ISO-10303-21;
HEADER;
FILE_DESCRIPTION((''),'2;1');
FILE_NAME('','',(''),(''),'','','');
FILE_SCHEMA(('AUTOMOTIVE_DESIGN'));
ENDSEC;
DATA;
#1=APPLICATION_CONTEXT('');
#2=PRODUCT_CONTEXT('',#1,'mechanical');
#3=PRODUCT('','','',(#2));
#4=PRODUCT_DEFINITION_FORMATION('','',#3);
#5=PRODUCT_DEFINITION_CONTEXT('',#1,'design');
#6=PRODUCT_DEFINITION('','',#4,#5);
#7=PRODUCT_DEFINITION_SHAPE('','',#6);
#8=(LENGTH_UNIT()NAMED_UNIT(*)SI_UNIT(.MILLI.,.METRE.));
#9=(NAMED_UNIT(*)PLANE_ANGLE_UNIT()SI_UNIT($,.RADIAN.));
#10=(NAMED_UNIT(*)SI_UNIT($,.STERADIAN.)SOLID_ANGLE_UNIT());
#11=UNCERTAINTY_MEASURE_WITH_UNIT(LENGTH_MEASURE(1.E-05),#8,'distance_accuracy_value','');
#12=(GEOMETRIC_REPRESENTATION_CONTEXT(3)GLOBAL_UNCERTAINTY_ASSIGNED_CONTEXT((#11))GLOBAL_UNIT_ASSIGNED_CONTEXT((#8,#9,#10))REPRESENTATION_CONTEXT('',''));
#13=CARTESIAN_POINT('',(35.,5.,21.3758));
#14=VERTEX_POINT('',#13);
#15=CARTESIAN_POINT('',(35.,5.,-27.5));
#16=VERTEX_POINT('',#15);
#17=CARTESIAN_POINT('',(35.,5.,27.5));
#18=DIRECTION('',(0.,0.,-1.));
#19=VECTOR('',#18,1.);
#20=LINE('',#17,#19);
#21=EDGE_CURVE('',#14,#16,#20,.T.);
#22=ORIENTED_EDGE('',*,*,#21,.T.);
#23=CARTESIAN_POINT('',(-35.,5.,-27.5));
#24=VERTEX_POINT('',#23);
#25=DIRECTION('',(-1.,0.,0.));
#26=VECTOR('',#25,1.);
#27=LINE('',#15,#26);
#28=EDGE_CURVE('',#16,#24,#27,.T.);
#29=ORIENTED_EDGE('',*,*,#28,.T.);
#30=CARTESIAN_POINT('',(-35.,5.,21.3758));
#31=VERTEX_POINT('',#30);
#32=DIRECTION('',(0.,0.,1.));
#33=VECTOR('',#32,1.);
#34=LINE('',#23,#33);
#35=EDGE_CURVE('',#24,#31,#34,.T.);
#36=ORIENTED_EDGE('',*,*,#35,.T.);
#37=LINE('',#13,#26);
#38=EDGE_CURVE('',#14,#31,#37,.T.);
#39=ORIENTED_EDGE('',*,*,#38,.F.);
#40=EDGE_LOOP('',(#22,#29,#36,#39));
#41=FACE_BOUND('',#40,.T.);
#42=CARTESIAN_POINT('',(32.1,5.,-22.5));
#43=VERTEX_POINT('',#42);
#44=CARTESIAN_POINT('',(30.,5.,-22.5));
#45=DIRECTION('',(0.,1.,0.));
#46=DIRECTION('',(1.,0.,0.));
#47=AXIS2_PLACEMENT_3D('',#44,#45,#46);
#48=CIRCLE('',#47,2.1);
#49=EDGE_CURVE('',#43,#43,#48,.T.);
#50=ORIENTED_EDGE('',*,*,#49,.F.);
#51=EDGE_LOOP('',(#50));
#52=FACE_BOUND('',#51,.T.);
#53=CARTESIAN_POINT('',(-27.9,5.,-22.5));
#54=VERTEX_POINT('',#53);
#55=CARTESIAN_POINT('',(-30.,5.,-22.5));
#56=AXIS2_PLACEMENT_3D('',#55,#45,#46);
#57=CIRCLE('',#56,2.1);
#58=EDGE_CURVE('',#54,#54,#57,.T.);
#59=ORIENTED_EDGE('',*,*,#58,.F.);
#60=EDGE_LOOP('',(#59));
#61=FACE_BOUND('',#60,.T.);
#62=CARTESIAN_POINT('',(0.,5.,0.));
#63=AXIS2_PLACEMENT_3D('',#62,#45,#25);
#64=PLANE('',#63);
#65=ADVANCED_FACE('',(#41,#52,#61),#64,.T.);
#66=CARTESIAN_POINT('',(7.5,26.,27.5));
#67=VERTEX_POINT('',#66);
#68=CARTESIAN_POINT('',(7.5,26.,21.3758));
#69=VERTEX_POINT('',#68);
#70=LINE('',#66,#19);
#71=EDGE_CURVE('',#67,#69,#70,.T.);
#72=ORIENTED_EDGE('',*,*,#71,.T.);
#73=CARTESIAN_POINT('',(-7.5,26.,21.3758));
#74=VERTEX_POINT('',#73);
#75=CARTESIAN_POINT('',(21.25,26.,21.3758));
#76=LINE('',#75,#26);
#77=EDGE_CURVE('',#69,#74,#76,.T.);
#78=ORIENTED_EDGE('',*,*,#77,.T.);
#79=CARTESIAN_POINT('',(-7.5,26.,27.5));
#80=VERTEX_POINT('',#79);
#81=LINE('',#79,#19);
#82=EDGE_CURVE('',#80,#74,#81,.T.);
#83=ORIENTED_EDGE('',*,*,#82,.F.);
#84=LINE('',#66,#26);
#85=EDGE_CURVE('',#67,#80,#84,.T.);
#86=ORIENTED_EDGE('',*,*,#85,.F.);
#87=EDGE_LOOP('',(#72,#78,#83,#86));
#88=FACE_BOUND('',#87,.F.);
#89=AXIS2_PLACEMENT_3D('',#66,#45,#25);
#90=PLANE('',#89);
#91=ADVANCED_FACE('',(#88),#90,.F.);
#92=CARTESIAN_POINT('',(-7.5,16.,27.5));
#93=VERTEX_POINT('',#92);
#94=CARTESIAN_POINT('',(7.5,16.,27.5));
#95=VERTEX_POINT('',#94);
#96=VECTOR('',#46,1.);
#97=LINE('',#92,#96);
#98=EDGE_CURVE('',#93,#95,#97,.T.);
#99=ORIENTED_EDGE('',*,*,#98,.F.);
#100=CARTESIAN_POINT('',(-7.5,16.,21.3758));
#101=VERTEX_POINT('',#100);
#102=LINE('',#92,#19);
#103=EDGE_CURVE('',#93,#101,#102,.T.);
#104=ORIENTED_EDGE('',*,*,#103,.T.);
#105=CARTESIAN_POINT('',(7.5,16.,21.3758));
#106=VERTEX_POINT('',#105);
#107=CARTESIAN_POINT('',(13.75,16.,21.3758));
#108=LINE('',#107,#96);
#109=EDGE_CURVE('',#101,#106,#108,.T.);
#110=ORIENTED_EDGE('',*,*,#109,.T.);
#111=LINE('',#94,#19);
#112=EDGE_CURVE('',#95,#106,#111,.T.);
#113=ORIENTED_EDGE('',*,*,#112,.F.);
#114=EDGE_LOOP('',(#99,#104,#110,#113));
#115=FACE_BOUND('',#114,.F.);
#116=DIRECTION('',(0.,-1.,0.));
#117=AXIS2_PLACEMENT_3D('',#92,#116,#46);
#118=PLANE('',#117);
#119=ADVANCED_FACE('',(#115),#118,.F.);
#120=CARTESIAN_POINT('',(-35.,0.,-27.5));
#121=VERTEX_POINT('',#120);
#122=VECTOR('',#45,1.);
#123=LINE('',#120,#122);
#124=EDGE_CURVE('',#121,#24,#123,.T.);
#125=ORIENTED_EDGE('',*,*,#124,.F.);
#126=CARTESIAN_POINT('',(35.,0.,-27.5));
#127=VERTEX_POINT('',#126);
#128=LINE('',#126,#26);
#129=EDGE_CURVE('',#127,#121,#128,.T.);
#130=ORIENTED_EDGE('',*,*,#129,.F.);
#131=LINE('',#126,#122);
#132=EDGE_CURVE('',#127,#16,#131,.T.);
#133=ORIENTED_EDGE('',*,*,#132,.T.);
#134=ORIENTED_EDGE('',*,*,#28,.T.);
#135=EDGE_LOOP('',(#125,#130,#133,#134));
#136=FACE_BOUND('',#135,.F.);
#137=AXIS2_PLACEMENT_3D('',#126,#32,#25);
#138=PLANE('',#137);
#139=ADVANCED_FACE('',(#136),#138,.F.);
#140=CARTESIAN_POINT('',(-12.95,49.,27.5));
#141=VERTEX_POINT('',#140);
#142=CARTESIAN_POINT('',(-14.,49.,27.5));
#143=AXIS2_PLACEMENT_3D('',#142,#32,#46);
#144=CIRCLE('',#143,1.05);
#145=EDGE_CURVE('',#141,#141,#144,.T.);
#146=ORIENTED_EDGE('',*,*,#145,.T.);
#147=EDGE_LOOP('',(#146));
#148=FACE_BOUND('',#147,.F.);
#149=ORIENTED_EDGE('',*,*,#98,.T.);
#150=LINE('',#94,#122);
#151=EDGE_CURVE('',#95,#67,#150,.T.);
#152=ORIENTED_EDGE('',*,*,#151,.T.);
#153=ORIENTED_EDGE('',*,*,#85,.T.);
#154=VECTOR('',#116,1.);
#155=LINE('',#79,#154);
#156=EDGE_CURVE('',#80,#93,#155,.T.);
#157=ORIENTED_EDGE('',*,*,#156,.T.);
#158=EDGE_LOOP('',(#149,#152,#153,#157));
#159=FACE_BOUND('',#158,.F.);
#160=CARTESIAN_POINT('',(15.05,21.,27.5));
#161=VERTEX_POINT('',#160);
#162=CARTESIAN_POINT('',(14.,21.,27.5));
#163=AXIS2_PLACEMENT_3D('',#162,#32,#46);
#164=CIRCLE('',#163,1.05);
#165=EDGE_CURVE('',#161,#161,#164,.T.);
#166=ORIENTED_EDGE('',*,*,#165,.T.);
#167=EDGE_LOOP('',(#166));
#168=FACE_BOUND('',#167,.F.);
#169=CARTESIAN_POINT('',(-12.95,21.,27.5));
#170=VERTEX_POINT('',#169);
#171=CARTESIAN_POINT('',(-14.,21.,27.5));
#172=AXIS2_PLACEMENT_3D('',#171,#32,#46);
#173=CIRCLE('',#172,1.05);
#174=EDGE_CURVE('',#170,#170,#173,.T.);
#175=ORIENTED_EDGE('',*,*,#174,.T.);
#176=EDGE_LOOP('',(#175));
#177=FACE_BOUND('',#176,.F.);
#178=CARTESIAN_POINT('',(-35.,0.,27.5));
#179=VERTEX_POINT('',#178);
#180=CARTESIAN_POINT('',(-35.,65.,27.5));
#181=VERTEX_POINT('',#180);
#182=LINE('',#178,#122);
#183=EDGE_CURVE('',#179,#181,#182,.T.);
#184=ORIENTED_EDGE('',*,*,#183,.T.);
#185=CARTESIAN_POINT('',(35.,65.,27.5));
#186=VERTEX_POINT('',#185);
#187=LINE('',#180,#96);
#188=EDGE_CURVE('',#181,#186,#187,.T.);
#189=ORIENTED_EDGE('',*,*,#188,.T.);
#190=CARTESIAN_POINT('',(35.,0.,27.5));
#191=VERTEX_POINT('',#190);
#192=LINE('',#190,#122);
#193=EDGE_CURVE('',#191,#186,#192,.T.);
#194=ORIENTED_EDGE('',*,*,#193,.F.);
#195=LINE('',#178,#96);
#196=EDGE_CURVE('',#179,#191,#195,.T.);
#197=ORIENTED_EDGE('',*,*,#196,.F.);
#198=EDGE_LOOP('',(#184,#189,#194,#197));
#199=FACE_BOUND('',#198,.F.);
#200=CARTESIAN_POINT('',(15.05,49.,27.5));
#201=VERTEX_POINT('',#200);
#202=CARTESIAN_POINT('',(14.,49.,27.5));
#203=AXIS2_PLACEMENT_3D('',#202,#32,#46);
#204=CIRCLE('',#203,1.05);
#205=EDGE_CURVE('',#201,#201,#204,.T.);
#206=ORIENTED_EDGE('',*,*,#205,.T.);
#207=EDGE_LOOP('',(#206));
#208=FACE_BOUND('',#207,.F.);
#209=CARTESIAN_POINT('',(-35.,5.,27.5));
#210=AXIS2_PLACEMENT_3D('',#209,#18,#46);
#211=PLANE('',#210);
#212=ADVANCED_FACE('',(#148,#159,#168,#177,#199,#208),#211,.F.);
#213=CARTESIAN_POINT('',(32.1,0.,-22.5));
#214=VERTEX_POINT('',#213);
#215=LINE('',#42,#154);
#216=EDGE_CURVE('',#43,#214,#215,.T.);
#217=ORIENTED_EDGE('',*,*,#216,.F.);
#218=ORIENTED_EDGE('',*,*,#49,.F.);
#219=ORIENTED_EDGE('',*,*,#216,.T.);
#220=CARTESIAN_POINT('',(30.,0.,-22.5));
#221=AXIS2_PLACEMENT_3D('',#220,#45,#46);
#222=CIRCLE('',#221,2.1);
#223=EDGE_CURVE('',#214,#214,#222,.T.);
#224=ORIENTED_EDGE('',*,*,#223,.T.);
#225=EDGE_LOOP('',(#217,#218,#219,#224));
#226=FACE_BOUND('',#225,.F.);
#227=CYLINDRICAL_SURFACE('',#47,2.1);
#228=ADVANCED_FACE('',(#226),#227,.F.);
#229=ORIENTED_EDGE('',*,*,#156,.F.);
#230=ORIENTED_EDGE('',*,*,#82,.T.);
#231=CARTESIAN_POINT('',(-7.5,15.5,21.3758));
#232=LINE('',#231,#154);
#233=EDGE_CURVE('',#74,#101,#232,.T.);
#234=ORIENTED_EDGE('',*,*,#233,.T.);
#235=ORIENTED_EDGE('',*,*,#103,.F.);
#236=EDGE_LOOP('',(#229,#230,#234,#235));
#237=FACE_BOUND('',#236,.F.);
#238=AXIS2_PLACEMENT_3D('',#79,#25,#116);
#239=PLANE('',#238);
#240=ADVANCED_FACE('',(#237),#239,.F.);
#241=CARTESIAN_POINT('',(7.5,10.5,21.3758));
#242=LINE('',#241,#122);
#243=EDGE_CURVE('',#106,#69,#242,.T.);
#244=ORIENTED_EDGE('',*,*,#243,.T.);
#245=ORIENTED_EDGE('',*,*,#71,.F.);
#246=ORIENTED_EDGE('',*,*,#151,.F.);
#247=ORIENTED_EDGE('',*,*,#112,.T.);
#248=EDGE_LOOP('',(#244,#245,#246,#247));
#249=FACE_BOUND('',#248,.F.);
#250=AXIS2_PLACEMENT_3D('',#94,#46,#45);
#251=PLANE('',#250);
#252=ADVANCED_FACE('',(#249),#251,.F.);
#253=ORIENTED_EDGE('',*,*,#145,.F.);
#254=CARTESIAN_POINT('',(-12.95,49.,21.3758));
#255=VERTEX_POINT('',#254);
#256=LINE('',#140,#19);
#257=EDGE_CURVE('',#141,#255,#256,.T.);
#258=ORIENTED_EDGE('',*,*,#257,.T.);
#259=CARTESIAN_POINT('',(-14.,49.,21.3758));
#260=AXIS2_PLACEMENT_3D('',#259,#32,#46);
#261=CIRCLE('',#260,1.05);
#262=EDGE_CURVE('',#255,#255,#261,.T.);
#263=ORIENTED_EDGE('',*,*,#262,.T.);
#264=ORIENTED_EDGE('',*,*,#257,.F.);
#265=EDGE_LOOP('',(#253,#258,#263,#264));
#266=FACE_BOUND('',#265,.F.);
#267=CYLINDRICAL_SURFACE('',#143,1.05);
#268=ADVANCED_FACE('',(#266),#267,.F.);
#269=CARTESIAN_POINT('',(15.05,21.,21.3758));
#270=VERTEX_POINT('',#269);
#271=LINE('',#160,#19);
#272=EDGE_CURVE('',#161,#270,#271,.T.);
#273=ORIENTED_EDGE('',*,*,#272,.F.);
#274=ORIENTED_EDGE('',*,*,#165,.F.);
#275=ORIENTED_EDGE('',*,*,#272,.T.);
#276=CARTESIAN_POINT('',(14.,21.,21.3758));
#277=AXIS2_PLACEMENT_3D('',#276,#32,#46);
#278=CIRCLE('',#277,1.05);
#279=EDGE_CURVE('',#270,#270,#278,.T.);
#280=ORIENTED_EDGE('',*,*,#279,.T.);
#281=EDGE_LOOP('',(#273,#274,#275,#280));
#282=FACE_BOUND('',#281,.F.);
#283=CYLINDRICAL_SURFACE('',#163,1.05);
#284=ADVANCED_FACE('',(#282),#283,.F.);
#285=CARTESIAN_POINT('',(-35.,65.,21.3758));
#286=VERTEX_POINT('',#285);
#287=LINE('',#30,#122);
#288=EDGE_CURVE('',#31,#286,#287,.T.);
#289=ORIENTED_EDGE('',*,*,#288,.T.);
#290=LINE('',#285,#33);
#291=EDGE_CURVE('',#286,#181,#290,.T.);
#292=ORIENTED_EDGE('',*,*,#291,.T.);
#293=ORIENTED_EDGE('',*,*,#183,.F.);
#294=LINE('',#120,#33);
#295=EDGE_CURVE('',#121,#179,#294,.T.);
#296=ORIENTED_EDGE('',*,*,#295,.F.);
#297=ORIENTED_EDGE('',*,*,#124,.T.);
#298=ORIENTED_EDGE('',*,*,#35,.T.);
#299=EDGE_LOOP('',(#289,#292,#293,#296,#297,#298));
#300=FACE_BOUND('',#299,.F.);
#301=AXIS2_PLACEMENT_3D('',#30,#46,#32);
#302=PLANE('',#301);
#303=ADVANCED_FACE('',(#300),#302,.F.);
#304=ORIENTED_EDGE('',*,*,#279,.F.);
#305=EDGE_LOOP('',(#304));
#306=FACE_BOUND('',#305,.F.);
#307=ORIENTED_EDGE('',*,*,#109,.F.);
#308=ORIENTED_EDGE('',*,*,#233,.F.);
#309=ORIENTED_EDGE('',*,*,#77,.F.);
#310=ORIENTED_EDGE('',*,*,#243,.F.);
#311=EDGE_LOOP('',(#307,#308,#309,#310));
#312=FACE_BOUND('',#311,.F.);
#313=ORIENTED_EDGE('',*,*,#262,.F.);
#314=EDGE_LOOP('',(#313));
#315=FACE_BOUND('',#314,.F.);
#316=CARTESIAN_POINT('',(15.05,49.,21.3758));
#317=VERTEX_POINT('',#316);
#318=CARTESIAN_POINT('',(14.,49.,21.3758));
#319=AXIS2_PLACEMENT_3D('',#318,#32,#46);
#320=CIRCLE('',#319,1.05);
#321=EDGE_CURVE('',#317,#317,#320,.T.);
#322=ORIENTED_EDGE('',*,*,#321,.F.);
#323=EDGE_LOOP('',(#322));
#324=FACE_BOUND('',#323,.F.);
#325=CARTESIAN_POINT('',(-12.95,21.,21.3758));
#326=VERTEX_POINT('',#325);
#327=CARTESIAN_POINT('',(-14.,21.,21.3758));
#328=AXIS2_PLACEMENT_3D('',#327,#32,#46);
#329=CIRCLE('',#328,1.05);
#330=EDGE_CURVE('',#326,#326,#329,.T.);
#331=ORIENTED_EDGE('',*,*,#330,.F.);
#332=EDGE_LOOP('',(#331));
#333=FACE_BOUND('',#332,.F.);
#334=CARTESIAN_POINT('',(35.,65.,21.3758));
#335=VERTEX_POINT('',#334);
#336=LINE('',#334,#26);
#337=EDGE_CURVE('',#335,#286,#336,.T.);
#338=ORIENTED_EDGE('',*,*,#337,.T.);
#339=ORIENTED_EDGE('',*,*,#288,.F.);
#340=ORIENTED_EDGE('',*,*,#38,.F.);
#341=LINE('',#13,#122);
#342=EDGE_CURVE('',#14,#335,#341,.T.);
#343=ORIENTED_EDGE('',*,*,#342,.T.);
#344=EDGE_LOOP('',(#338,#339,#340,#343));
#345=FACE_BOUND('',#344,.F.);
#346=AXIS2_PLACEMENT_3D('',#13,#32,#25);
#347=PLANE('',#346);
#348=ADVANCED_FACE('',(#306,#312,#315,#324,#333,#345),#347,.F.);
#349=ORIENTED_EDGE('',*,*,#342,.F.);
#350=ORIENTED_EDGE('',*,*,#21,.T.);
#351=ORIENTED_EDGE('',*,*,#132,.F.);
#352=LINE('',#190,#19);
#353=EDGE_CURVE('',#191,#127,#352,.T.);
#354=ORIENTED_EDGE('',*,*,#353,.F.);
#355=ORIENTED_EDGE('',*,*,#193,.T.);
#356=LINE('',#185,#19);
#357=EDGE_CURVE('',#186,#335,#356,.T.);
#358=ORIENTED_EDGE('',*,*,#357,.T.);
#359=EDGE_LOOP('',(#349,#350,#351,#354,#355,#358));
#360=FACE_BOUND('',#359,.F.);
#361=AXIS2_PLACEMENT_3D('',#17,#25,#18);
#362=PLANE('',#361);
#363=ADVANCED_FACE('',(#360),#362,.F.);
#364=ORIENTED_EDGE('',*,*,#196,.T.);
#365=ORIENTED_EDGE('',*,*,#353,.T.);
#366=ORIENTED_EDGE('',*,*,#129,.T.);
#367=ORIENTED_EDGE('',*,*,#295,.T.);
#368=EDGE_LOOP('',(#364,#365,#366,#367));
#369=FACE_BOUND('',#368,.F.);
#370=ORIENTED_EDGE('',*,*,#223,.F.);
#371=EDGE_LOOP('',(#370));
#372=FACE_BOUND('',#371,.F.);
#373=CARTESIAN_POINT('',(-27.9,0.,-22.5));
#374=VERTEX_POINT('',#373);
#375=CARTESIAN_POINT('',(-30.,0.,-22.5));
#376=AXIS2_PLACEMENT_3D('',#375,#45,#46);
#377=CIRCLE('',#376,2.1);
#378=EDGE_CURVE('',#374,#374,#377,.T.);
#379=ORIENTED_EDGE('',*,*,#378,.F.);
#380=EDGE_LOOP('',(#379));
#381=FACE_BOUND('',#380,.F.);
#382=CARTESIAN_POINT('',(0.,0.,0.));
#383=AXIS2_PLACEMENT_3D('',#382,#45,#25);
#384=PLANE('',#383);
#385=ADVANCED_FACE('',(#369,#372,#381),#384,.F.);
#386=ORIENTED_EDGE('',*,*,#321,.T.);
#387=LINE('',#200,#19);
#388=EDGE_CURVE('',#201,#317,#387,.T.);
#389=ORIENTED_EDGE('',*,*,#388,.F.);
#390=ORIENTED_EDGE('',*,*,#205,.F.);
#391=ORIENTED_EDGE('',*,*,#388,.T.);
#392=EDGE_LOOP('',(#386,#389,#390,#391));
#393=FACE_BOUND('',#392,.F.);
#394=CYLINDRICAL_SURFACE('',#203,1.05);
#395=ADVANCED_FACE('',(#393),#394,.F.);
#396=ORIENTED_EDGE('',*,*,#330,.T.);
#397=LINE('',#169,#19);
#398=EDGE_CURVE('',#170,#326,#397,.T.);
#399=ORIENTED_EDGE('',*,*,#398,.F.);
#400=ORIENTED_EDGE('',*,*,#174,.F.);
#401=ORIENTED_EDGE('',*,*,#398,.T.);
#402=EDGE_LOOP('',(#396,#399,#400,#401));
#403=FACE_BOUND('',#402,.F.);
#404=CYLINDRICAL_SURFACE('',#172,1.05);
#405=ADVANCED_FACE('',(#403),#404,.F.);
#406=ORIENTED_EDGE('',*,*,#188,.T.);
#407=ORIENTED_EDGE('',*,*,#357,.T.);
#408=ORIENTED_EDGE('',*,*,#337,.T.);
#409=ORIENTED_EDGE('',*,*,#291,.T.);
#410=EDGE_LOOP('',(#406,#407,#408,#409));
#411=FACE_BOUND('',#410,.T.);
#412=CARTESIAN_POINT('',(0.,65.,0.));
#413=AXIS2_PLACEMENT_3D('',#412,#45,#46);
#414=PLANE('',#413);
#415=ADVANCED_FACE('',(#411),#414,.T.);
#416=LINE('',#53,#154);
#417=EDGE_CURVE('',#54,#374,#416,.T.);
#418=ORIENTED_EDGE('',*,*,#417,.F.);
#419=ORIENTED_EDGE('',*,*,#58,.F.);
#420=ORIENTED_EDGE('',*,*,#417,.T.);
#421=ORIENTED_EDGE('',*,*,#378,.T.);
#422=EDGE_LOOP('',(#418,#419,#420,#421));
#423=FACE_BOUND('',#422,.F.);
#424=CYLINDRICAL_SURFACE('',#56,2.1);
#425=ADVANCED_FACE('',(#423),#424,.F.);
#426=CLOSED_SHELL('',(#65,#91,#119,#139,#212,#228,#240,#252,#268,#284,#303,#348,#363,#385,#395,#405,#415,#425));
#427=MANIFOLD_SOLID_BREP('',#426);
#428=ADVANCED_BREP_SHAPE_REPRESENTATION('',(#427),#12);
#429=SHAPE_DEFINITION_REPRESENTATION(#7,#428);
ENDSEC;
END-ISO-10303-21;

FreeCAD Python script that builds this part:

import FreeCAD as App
import Part
import Sketcher
from FreeCAD import Vector
Q = App.Units.Quantity


def add_polygon(sketch, points):
    """Adds a closed chain of lines whose ends are joined by coincident constraints."""
    first, n = sketch.GeometryCount, len(points)
    for a, b in zip(points, points[1:] + points[:1]):
        sketch.addGeometry(Part.LineSegment(App.Vector(*a, 0), App.Vector(*b, 0)), False)
    for i in range(n):
        sketch.addConstraint(Sketcher.Constraint("Coincident", first + i, 2, first + (i + 1) % n, 1))

doc = App.newDocument("Part")
body = doc.addObject("PartDesign::Body", "Body")

sketch1 = body.newObject("Sketcher::SketchObject", "Sketch")
sketch1.AttachmentSupport = (doc.getObject("XZ_Plane"), [""])
sketch1.MapMode = "FlatFace"
add_polygon(sketch1, [(-35, -28), (-35, 28), (35, 28), (35, -28)])
sketch1.addConstraint([
    Sketcher.Constraint("Vertical", 0),
    Sketcher.Constraint("Horizontal", 1),
    Sketcher.Constraint("Vertical", 2),
    Sketcher.Constraint("Horizontal", 3),
    Sketcher.Constraint("Symmetric", 0, 2, 2, 2, -1, 1),
    Sketcher.Constraint("DistanceX", 1, 1, 1, 2, Q("70 mm")),
    Sketcher.Constraint("DistanceY", 0, 1, 0, 2, Q("55 mm")),
])
pad1 = body.newObject("PartDesign::Pad", "Pad")
pad1.Profile = sketch1
pad1.Length = 5
pad1.Reversed = True

sketch2 = body.newObject("Sketcher::SketchObject", "Sketch001")
sketch2.AttachmentSupport = (doc.getObject("XZ_Plane"), [""])
sketch2.MapMode = "FlatFace"
sketch2.AttachmentOffset = App.Placement(Vector(0, 0, -5), App.Rotation())
sketch2.addGeometry([
    Part.Circle(Vector(-30, -22.5, 0), Vector(0, 0, 1), 2.1),
    Part.Circle(Vector(30, -22.5, 0), Vector(0, 0, 1), 2.1),
], False)
sketch2.addConstraint([
    Sketcher.Constraint("Equal", 0, 1),
    Sketcher.Constraint("Symmetric", 0, 3, 1, 3, -2),
    Sketcher.Constraint("Diameter", 0, Q("4.2 mm")),
    Sketcher.Constraint("DistanceX", 0, 3, -1, 1, Q("30 mm")),
    Sketcher.Constraint("DistanceY", 0, 3, -1, 1, Q("22.5 mm")),
])
pocket1 = body.newObject("PartDesign::Pocket", "Pocket")
pocket1.Profile = sketch2
pocket1.Length = 5
pocket1.Reversed = True

sketch3 = body.newObject("Sketcher::SketchObject", "Sketch002")
sketch3.AttachmentSupport = (doc.getObject("XZ_Plane"), [""])
sketch3.MapMode = "FlatFace"
sketch3.AttachmentOffset = App.Placement(Vector(0, 0, -5), App.Rotation())
add_polygon(sketch3, [(-35, 21), (-35, 28), (35, 28), (35, 21)])
sketch3.addConstraint([
    Sketcher.Constraint("Vertical", 0),
    Sketcher.Constraint("Horizontal", 1),
    Sketcher.Constraint("Vertical", 2),
    Sketcher.Constraint("Horizontal", 3),
    Sketcher.Constraint("DistanceX", 1, 1, 1, 2, Q("70 mm")),
    Sketcher.Constraint("DistanceX", 0, 2, -1, 1, Q("35 mm")),
    Sketcher.Constraint("DistanceY", -1, 1, 0, 2, Q("27.5 mm")),
    Sketcher.Constraint("DistanceY", 0, 1, 0, 2, Q("6.1242 mm")),
])
pad2 = body.newObject("PartDesign::Pad", "Pad001")
pad2.Profile = sketch3
pad2.Length = 60
pad2.Reversed = True

sketch4 = body.newObject("Sketcher::SketchObject", "Sketch003")
sketch4.AttachmentSupport = (doc.getObject("XY_Plane"), [""])
sketch4.MapMode = "FlatFace"
sketch4.AttachmentOffset = App.Placement(Vector(0, 0, 27.5), App.Rotation())
sketch4.addGeometry([
    Part.Circle(Vector(-14, 49, 0), Vector(0, 0, 1), 1.1),
    Part.Circle(Vector(14, 49, 0), Vector(0, 0, 1), 1.1),
    Part.Circle(Vector(-14, 21, 0), Vector(0, 0, 1), 1.1),
    Part.Circle(Vector(14, 21, 0), Vector(0, 0, 1), 1.1),
], False)
sketch4.addConstraint([
    Sketcher.Constraint("Equal", 0, 1),
    Sketcher.Constraint("Equal", 1, 2),
    Sketcher.Constraint("Equal", 2, 3),
    Sketcher.Constraint("Symmetric", 0, 3, 1, 3, -2),
    Sketcher.Constraint("Symmetric", 2, 3, 3, 3, -2),
    Sketcher.Constraint("Vertical", 0, 3, 2, 3),
    Sketcher.Constraint("Diameter", 0, Q("2.1 mm")),
    Sketcher.Constraint("DistanceY", -1, 1, 2, 3, Q("21 mm")),
    Sketcher.Constraint("DistanceX", 0, 3, 1, 3, Q("28 mm")),
    Sketcher.Constraint("DistanceY", 2, 3, 0, 3, Q("28 mm")),
])
pocket2 = body.newObject("PartDesign::Pocket", "Pocket001")
pocket2.Profile = sketch4
pocket2.Length = 50

sketch5 = body.newObject("Sketcher::SketchObject", "Sketch004")
sketch5.AttachmentSupport = (doc.getObject("XY_Plane"), [""])
sketch5.MapMode = "FlatFace"
sketch5.AttachmentOffset = App.Placement(Vector(0, 0, 27.5), App.Rotation())
add_polygon(sketch5, [(-8, 26), (-8, 16), (8, 16), (8, 26)])
sketch5.addConstraint([
    Sketcher.Constraint("Vertical", 0),
    Sketcher.Constraint("Horizontal", 1),
    Sketcher.Constraint("Vertical", 2),
    Sketcher.Constraint("Horizontal", 3),
    Sketcher.Constraint("DistanceX", 1, 1, 1, 2, Q("15 mm")),
    Sketcher.Constraint("DistanceY", 0, 2, 0, 1, Q("10 mm")),
    Sketcher.Constraint("DistanceY", -1, 1, 0, 2, Q("16 mm")),
    Sketcher.Constraint("DistanceX", 0, 2, -1, 1, Q("7.5 mm")),
])
pocket3 = body.newObject("PartDesign::Pocket", "Pocket002")
pocket3.Profile = sketch5
pocket3.Length = 50

doc.recompute()
